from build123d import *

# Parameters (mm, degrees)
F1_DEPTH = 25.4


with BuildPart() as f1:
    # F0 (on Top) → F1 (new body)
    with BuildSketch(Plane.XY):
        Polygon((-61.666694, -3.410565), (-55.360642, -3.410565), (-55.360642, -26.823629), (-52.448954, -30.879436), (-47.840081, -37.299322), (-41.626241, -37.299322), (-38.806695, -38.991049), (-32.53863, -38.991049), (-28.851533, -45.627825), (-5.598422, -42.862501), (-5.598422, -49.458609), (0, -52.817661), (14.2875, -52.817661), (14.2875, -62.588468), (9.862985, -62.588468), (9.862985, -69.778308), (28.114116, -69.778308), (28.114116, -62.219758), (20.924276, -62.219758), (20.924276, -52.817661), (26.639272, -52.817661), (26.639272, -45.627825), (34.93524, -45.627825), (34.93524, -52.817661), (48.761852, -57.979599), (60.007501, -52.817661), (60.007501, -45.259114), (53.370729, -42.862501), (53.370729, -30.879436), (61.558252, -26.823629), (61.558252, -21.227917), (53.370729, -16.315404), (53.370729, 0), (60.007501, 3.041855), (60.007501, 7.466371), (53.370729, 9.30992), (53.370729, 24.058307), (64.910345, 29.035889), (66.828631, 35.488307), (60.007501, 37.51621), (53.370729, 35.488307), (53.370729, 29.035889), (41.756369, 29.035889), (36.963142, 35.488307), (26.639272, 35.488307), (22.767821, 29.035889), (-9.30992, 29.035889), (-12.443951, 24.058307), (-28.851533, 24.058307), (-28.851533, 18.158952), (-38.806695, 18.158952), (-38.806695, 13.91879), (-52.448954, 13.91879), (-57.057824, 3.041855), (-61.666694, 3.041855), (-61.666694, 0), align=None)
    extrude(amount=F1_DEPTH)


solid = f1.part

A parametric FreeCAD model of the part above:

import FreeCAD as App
import Part
import Sketcher
Q = App.Units.Quantity

doc = App.newDocument("Part")
body = doc.addObject("PartDesign::Body", "Body")

# Sketch on XY plane
sketch1 = body.newObject("Sketcher::SketchObject", "Sketch")
sketch1.AttachmentSupport = (doc.getObject("XY_Plane"), [""])
sketch1.MapMode = "FlatFace"
sketch1.addGeometry([
    Part.LineSegment(App.Vector(-61.666694, -3.410565, 0), App.Vector(-55.360642, -3.410565, 0)),  # 0
    Part.LineSegment(App.Vector(-55.360642, -3.410565, 0), App.Vector(-55.360642, -26.823629, 0)),  # 1
    Part.LineSegment(App.Vector(-55.360642, -26.823629, 0), App.Vector(-52.448954, -30.879436, 0)),  # 2
    Part.LineSegment(App.Vector(-52.448954, -30.879436, 0), App.Vector(-47.840081, -37.299322, 0)),  # 3
    Part.LineSegment(App.Vector(-47.840081, -37.299322, 0), App.Vector(-41.626241, -37.299322, 0)),  # 4
    Part.LineSegment(App.Vector(-41.626241, -37.299322, 0), App.Vector(-38.806695, -38.991049, 0)),  # 5
    Part.LineSegment(App.Vector(-38.806695, -38.991049, 0), App.Vector(-32.53863, -38.991049, 0)),  # 6
    Part.LineSegment(App.Vector(-32.53863, -38.991049, 0), App.Vector(-28.851533, -45.627825, 0)),  # 7
    Part.LineSegment(App.Vector(-28.851533, -45.627825, 0), App.Vector(-5.598422, -42.862501, 0)),  # 8
    Part.LineSegment(App.Vector(-5.598422, -42.862501, 0), App.Vector(-5.598422, -49.458609, 0)),  # 9
    Part.LineSegment(App.Vector(-5.598422, -49.458609, 0), App.Vector(0, -52.817661, 0)),  # 10
    Part.LineSegment(App.Vector(0, -52.817661, 0), App.Vector(14.2875, -52.817661, 0)),  # 11
    Part.LineSegment(App.Vector(14.2875, -52.817661, 0), App.Vector(14.2875, -62.588468, 0)),  # 12
    Part.LineSegment(App.Vector(14.2875, -62.588468, 0), App.Vector(9.862985, -62.588468, 0)),  # 13
    Part.LineSegment(App.Vector(9.862985, -62.588468, 0), App.Vector(9.862985, -69.778308, 0)),  # 14
    Part.LineSegment(App.Vector(9.862985, -69.778308, 0), App.Vector(28.114116, -69.778308, 0)),  # 15
    Part.LineSegment(App.Vector(28.114116, -69.778308, 0), App.Vector(28.114116, -62.219758, 0)),  # 16
    Part.LineSegment(App.Vector(28.114116, -62.219758, 0), App.Vector(20.924276, -62.219758, 0)),  # 17
    Part.LineSegment(App.Vector(20.924276, -62.219758, 0), App.Vector(20.924276, -52.817661, 0)),  # 18
    Part.LineSegment(App.Vector(20.924276, -52.817661, 0), App.Vector(26.639272, -52.817661, 0)),  # 19
    Part.LineSegment(App.Vector(26.639272, -52.817661, 0), App.Vector(26.639272, -45.627825, 0)),  # 20
    Part.LineSegment(App.Vector(26.639272, -45.627825, 0), App.Vector(34.93524, -45.627825, 0)),  # 21
    Part.LineSegment(App.Vector(34.93524, -45.627825, 0), App.Vector(34.93524, -52.817661, 0)),  # 22
    Part.LineSegment(App.Vector(34.93524, -52.817661, 0), App.Vector(48.761852, -57.979599, 0)),  # 23
    Part.LineSegment(App.Vector(48.761852, -57.979599, 0), App.Vector(60.007501, -52.817661, 0)),  # 24
    Part.LineSegment(App.Vector(60.007501, -52.817661, 0), App.Vector(60.007501, -45.259114, 0)),  # 25
    Part.LineSegment(App.Vector(60.007501, -45.259114, 0), App.Vector(53.370729, -42.862501, 0)),  # 26
    Part.LineSegment(App.Vector(53.370729, -42.862501, 0), App.Vector(53.370729, -30.879436, 0)),  # 27
    Part.LineSegment(App.Vector(53.370729, -30.879436, 0), App.Vector(61.558252, -26.823629, 0)),  # 28
    Part.LineSegment(App.Vector(61.558252, -26.823629, 0), App.Vector(61.558252, -21.227917, 0)),  # 29
    Part.LineSegment(App.Vector(61.558252, -21.227917, 0), App.Vector(53.370729, -16.315404, 0)),  # 30
    Part.LineSegment(App.Vector(53.370729, -16.315404, 0), App.Vector(53.370729, 0, 0)),  # 31
    Part.LineSegment(App.Vector(53.370729, 0, 0), App.Vector(60.007501, 3.041855, 0)),  # 32
    Part.LineSegment(App.Vector(60.007501, 3.041855, 0), App.Vector(60.007501, 7.466371, 0)),  # 33
    Part.LineSegment(App.Vector(60.007501, 7.466371, 0), App.Vector(53.370729, 9.30992, 0)),  # 34
    Part.LineSegment(App.Vector(53.370729, 9.30992, 0), App.Vector(53.370729, 24.058307, 0)),  # 35
    Part.LineSegment(App.Vector(53.370729, 24.058307, 0), App.Vector(64.910345, 29.035889, 0)),  # 36
    Part.LineSegment(App.Vector(64.910345, 29.035889, 0), App.Vector(66.828631, 35.488307, 0)),  # 37
    Part.LineSegment(App.Vector(66.828631, 35.488307, 0), App.Vector(60.007501, 37.51621, 0)),  # 38
    Part.LineSegment(App.Vector(60.007501, 37.51621, 0), App.Vector(53.370729, 35.488307, 0)),  # 39
    Part.LineSegment(App.Vector(53.370729, 35.488307, 0), App.Vector(53.370729, 29.035889, 0)),  # 40
    Part.LineSegment(App.Vector(53.370729, 29.035889, 0), App.Vector(41.756369, 29.035889, 0)),  # 41
    Part.LineSegment(App.Vector(41.756369, 29.035889, 0), App.Vector(36.963142, 35.488307, 0)),  # 42
    Part.LineSegment(App.Vector(36.963142, 35.488307, 0), App.Vector(26.639272, 35.488307, 0)),  # 43
    Part.LineSegment(App.Vector(26.639272, 35.488307, 0), App.Vector(22.767821, 29.035889, 0)),  # 44
    Part.LineSegment(App.Vector(22.767821, 29.035889, 0), App.Vector(-9.30992, 29.035889, 0)),  # 45
    Part.LineSegment(App.Vector(-9.30992, 29.035889, 0), App.Vector(-12.443951, 24.058307, 0)),  # 46
    Part.LineSegment(App.Vector(-12.443951, 24.058307, 0), App.Vector(-28.851533, 24.058307, 0)),  # 47
    Part.LineSegment(App.Vector(-28.851533, 24.058307, 0), App.Vector(-28.851533, 18.158952, 0)),  # 48
    Part.LineSegment(App.Vector(-28.851533, 18.158952, 0), App.Vector(-38.806695, 18.158952, 0)),  # 49
    Part.LineSegment(App.Vector(-38.806695, 18.158952, 0), App.Vector(-38.806695, 13.91879, 0)),  # 50
    Part.LineSegment(App.Vector(-38.806695, 13.91879, 0), App.Vector(-52.448954, 13.91879, 0)),  # 51
    Part.LineSegment(App.Vector(-52.448954, 13.91879, 0), App.Vector(-57.057824, 3.041855, 0)),  # 52
    Part.LineSegment(App.Vector(-57.057824, 3.041855, 0), App.Vector(-61.666694, 3.041855, 0)),  # 53
    Part.LineSegment(App.Vector(-61.666694, 3.041855, 0), App.Vector(-61.666694, -3.410565, 0)),  # 54
], False)
sketch1.addConstraint([
    Sketcher.Constraint("Coincident", 0, 2, 1, 1),
    Sketcher.Constraint("Coincident", 1, 2, 2, 1),
    Sketcher.Constraint("Coincident", 2, 2, 3, 1),
    Sketcher.Constraint("Coincident", 3, 2, 4, 1),
    Sketcher.Constraint("Coincident", 4, 2, 5, 1),
    Sketcher.Constraint("Coincident", 5, 2, 6, 1),
    Sketcher.Constraint("Coincident", 6, 2, 7, 1),
    Sketcher.Constraint("Coincident", 7, 2, 8, 1),
    Sketcher.Constraint("Coincident", 8, 2, 9, 1),
    Sketcher.Constraint("Coincident", 9, 2, 10, 1),
    Sketcher.Constraint("Coincident", 10, 2, 11, 1),
    Sketcher.Constraint("Coincident", 11, 2, 12, 1),
    Sketcher.Constraint("Coincident", 12, 2, 13, 1),
    Sketcher.Constraint("Coincident", 13, 2, 14, 1),
    Sketcher.Constraint("Coincident", 14, 2, 15, 1),
    Sketcher.Constraint("Coincident", 15, 2, 16, 1),
    Sketcher.Constraint("Coincident", 16, 2, 17, 1),
    Sketcher.Constraint("Coincident", 17, 2, 18, 1),
    Sketcher.Constraint("Coincident", 18, 2, 19, 1),
    Sketcher.Constraint("Coincident", 19, 2, 20, 1),
    Sketcher.Constraint("Coincident", 20, 2, 21, 1),
    Sketcher.Constraint("Coincident", 21, 2, 22, 1),
    Sketcher.Constraint("Coincident", 22, 2, 23, 1),
    Sketcher.Constraint("Coincident", 23, 2, 24, 1),
    Sketcher.Constraint("Coincident", 24, 2, 25, 1),
    Sketcher.Constraint("Coincident", 25, 2, 26, 1),
    Sketcher.Constraint("Coincident", 26, 2, 27, 1),
    Sketcher.Constraint("Coincident", 27, 2, 28, 1),
    Sketcher.Constraint("Coincident", 28, 2, 29, 1),
    Sketcher.Constraint("Coincident", 29, 2, 30, 1),
    Sketcher.Constraint("Coincident", 30, 2, 31, 1),
    Sketcher.Constraint("Coincident", 31, 2, 32, 1),
    Sketcher.Constraint("Coincident", 32, 2, 33, 1),
    Sketcher.Constraint("Coincident", 33, 2, 34, 1),
    Sketcher.Constraint("Coincident", 34, 2, 35, 1),
    Sketcher.Constraint("Coincident", 35, 2, 36, 1),
    Sketcher.Constraint("Coincident", 36, 2, 37, 1),
    Sketcher.Constraint("Coincident", 37, 2, 38, 1),
    Sketcher.Constraint("Coincident", 38, 2, 39, 1),
    Sketcher.Constraint("Coincident", 39, 2, 40, 1),
    Sketcher.Constraint("Coincident", 40, 2, 41, 1),
    Sketcher.Constraint("Coincident", 41, 2, 42, 1),
    Sketcher.Constraint("Coincident", 42, 2, 43, 1),
    Sketcher.Constraint("Coincident", 43, 2, 44, 1),
    Sketcher.Constraint("Coincident", 44, 2, 45, 1),
    Sketcher.Constraint("Coincident", 45, 2, 46, 1),
    Sketcher.Constraint("Coincident", 46, 2, 47, 1),
    Sketcher.Constraint("Coincident", 47, 2, 48, 1),
    Sketcher.Constraint("Coincident", 48, 2, 49, 1),
    Sketcher.Constraint("Coincident", 49, 2, 50, 1),
    Sketcher.Constraint("Coincident", 50, 2, 51, 1),
    Sketcher.Constraint("Coincident", 51, 2, 52, 1),
    Sketcher.Constraint("Coincident", 52, 2, 53, 1),
    Sketcher.Constraint("Coincident", 53, 2, 54, 1),
    Sketcher.Constraint("Coincident", 54, 2, 0, 1),
    Sketcher.Constraint("Horizontal", 0),
    Sketcher.Constraint("Vertical", 1),
    Sketcher.Constraint("Horizontal", 4),
    Sketcher.Constraint("Horizontal", 6),
    Sketcher.Constraint("Vertical", 9),
    Sketcher.Constraint("Horizontal", 11),
    Sketcher.Constraint("Vertical", 12),
    Sketcher.Constraint("Horizontal", 13),
    Sketcher.Constraint("Vertical", 14),
    Sketcher.Constraint("Horizontal", 15),
    Sketcher.Constraint("Vertical", 16),
    Sketcher.Constraint("Horizontal", 17),
    Sketcher.Constraint("Vertical", 18),
    Sketcher.Constraint("Horizontal", 19),
    Sketcher.Constraint("Vertical", 20),
    Sketcher.Constraint("Horizontal", 21),
    Sketcher.Constraint("Vertical", 22),
    Sketcher.Constraint("Vertical", 25),
    Sketcher.Constraint("Vertical", 27),
    Sketcher.Constraint("Vertical", 29),
    Sketcher.Constraint("Vertical", 31),
    Sketcher.Constraint("Vertical", 33),
    Sketcher.Constraint("Vertical", 35),
    Sketcher.Constraint("Vertical", 40),
    Sketcher.Constraint("Horizontal", 41),
    Sketcher.Constraint("Horizontal", 43),
    Sketcher.Constraint("Horizontal", 45),
    Sketcher.Constraint("Horizontal", 47),
    Sketcher.Constraint("Vertical", 48),
    Sketcher.Constraint("Horizontal", 49),
    Sketcher.Constraint("Vertical", 50),
    Sketcher.Constraint("Horizontal", 51),
    Sketcher.Constraint("Horizontal", 53),
    Sketcher.Constraint("Vertical", 54),
    Sketcher.Constraint("PointOnObject", 10, 2, -2),
    Sketcher.Constraint("PointOnObject", 31, 2, -1),
    Sketcher.Constraint("Parallel", 2, 3),
    Sketcher.Constraint("Parallel", 5, 10),
    Sketcher.Constraint("Parallel", 10, 30),
    Sketcher.Constraint("Perpendicular", 37, 38),
    Sketcher.Constraint("Perpendicular", 30, 44),
    Sketcher.Constraint("Horizontal", 11, 2, 18, 2),
    Sketcher.Constraint("Horizontal", 7, 2, 20, 2),
    Sketcher.Constraint("Horizontal", 19, 2, 22, 2),
    Sketcher.Constraint("Horizontal", 22, 2, 24, 2),
    Sketcher.Constraint("Horizontal", 8, 2, 26, 2),
    Sketcher.Constraint("Horizontal", 2, 2, 27, 2),
    Sketcher.Constraint("Horizontal", 1, 2, 28, 2),
    Sketcher.Constraint("Horizontal", 37, 2, 39, 2),
    Sketcher.Constraint("Horizontal", 36, 2, 40, 2),
    Sketcher.Constraint("Horizontal", 39, 2, 42, 2),
    Sketcher.Constraint("Horizontal", 41, 2, 44, 2),
    Sketcher.Constraint("Horizontal", 35, 2, 46, 2),
    Sketcher.Constraint("Horizontal", 32, 2, 52, 2),
    Sketcher.Constraint("Vertical", 27, 2, 30, 2),
    Sketcher.Constraint("Vertical", 25, 2, 32, 2),
    Sketcher.Constraint("Vertical", 31, 2, 34, 2),
    Sketcher.Constraint("Vertical", 33, 2, 38, 2),
    Sketcher.Constraint("Vertical", 35, 2, 39, 2),
    Sketcher.Constraint("Vertical", 20, 2, 43, 2),
    Sketcher.Constraint("Vertical", 7, 2, 47, 2),
    Sketcher.Constraint("Vertical", 5, 2, 49, 2),
    Sketcher.Constraint("Vertical", 2, 2, 51, 2),
    Sketcher.Constraint("Equal", 17, 14),
    Sketcher.Constraint("Equal", 13, 33),
    Sketcher.Constraint("DistanceX", 53, 2, 50, 2, Q("0.9 in")),
    Sketcher.Constraint("DistanceX", 11, 1, 11, 2, Q("0.5625 in")),
    Sketcher.Constraint("DistanceX", 19, 1, 19, 2, Q("0.2249998 in")),
    Sketcher.Constraint("DistanceY", 28, 2, 33, 2, Q("1.35 in")),
    Sketcher.Constraint("DistanceY", 35, 2, 37, 2, Q("0.45 in")),
    Sketcher.Constraint("DistanceY", 8, 2, -1, 1, Q("1.6875 in")),
    Sketcher.Constraint("DistanceX", -1, 1, 24, 2, Q("2.3625 in")),
    Sketcher.Constraint("Distance", 7, Q("7.592199 mm")),
    Sketcher.Constraint("DistanceX", 4, 1, 4, 2, Q("6.21384 mm")),
    Sketcher.Constraint("DistanceX", 15, 1, 15, 2, Q("18.251131 mm")),
    Sketcher.Constraint("DistanceX", 17, 2, 17, 1, Q("7.18984 mm")),
    Sketcher.Constraint("DistanceX", 21, 1, 21, 2, Q("8.295968 mm")),
    Sketcher.Constraint("DistanceX", 41, 2, 41, 1, Q("11.61436 mm")),
    Sketcher.Constraint("DistanceX", 43, 2, 43, 1, Q("10.32387 mm")),
    Sketcher.Constraint("DistanceX", 45, 2, 45, 1, Q("32.077741 mm")),
    Sketcher.Constraint("DistanceX", 47, 2, 47, 1, Q("16.407582 mm")),
    Sketcher.Constraint("DistanceX", 49, 2, 49, 1, Q("9.955162 mm")),
    Sketcher.Constraint("DistanceX", 51, 2, 51, 1, Q("13.642259 mm")),
    Sketcher.Constraint("DistanceX", 53, 2, 53, 1, Q("4.60887 mm")),
    Sketcher.Constraint("DistanceY", 9, 2, 9, 1, Q("6.596108 mm")),
    Sketcher.Constraint("DistanceY", 16, 1, 16, 2, Q("7.55855 mm")),
    Sketcher.Constraint("DistanceY", 29, 1, 29, 2, Q("5.595712 mm")),
    Sketcher.Constraint("DistanceY", 50, 2, 50, 1, Q("4.240162 mm")),
    Sketcher.Constraint("DistanceY", 54, 2, 54, 1, Q("6.45242 mm")),
    Sketcher.Constraint("DistanceY", 23, 2, -1, 1, Q("57.979599 mm")),
    Sketcher.Constraint("DistanceX", 1, 2, 4, 2, Q("13.734401 mm")),
    Sketcher.Constraint("DistanceY", 14, 2, 9, 2, Q("20.319699 mm")),
    Sketcher.Constraint("Distance", 3, Q("7.902952 mm")),
    Sketcher.Constraint("Distance", 24, Q("12.373772 mm")),
    Sketcher.Constraint("Distance", 26, Q("7.056238 mm")),
    Sketcher.Constraint("Distance", 28, Q("9.137018 mm")),
    Sketcher.Constraint("Distance", 30, Q("9.54821 mm")),
    Sketcher.Constraint("Distance", 32, Q("7.300659 mm")),
    Sketcher.Constraint("Distance", 36, Q("12.567381 mm")),
    Sketcher.Constraint("Distance", 37, Q("6.731532 mm")),
    Sketcher.Constraint("Distance", 39, Q("6.939678 mm")),
    Sketcher.Constraint("DistanceX", 0, 1, 0, 2, Q("6.306052 mm")),
    Sketcher.Constraint("DistanceX", 6, 1, 6, 2, Q("6.268065 mm")),
    Sketcher.Constraint("DistanceX", 13, 2, 13, 1, Q("4.424515 mm")),
    Sketcher.Constraint("DistanceY", 12, 2, 12, 1, Q("9.770807 mm")),
    Sketcher.Constraint("DistanceY", 20, 1, 20, 2, Q("7.189836 mm")),
    Sketcher.Constraint("DistanceY", 35, 1, 35, 2, Q("14.748387 mm")),
    Sketcher.Constraint("DistanceY", 48, 2, 48, 1, Q("5.899355 mm")),
    Sketcher.Constraint("DistanceX", 3, 2, -1, 1, Q("47.840081 mm")),
    Sketcher.Constraint("DistanceY", -1, 1, 34, 2, Q("9.30992 mm")),
])
pad1 = body.newObject("PartDesign::Pad", "Pad")
pad1.Profile = sketch1
pad1.Length = Q("1 in")

doc.recompute()
